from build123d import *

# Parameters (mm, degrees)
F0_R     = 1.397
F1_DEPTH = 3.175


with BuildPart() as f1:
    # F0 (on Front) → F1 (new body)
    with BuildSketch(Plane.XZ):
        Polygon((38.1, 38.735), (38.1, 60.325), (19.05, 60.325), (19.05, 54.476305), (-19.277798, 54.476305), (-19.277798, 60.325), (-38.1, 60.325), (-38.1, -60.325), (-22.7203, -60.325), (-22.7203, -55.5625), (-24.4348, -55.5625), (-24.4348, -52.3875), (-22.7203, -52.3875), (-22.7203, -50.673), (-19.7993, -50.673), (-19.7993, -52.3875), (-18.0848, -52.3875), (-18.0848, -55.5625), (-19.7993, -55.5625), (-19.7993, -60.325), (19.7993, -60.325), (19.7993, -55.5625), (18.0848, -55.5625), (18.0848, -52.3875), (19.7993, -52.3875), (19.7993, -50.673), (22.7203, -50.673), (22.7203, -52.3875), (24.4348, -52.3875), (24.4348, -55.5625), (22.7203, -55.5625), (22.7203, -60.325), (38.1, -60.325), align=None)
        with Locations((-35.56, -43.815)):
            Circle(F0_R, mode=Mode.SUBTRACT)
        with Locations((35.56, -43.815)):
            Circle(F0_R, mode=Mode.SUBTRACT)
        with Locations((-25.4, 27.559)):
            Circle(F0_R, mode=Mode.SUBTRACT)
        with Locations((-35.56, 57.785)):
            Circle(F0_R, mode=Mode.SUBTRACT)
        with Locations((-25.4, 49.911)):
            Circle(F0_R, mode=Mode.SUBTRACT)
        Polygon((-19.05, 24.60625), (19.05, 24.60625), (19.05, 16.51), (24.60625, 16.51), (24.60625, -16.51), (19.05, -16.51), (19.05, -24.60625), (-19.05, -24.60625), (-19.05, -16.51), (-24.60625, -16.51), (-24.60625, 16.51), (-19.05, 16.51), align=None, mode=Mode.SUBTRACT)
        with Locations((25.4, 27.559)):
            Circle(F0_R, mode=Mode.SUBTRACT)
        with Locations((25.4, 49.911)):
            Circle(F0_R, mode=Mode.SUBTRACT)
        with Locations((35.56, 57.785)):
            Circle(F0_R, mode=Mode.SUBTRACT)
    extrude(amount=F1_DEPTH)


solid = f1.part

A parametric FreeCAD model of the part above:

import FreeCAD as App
import Part
import Sketcher
Q = App.Units.Quantity

doc = App.newDocument("Part")
body = doc.addObject("PartDesign::Body", "Body")

# Sketch on XZ plane
sketch1 = body.newObject("Sketcher::SketchObject", "Sketch")
sketch1.AttachmentSupport = (doc.getObject("XZ_Plane"), [""])
sketch1.MapMode = "FlatFace"
sketch1.addGeometry([
    Part.LineSegment(App.Vector(38.1, 60.325, 0), App.Vector(19.05, 60.325, 0)),  # 0
    Part.LineSegment(App.Vector(19.05, 60.325, 0), App.Vector(19.05, 54.476305, 0)),  # 1
    Part.LineSegment(App.Vector(19.05, 54.476305, 0), App.Vector(-19.277798, 54.476305, 0)),  # 2
    Part.LineSegment(App.Vector(-19.277798, 54.476305, 0), App.Vector(-19.277798, 60.325, 0)),  # 3
    Part.LineSegment(App.Vector(-19.277798, 60.325, 0), App.Vector(-38.1, 60.325, 0)),  # 4
    Part.LineSegment(App.Vector(-38.1, 60.325, 0), App.Vector(-38.1, -60.325, 0)),  # 5
    Part.LineSegment(App.Vector(-38.1, -60.325, 0), App.Vector(-22.7203, -60.325, 0)),  # 6
    Part.LineSegment(App.Vector(-22.7203, -60.325, 0), App.Vector(-22.7203, -55.5625, 0)),  # 7
    Part.LineSegment(App.Vector(-22.7203, -55.5625, 0), App.Vector(-24.4348, -55.5625, 0)),  # 8
    Part.LineSegment(App.Vector(-24.4348, -55.5625, 0), App.Vector(-24.4348, -52.3875, 0)),  # 9
    Part.LineSegment(App.Vector(-24.4348, -52.3875, 0), App.Vector(-22.7203, -52.3875, 0)),  # 10
    Part.LineSegment(App.Vector(-22.7203, -52.3875, 0), App.Vector(-22.7203, -50.673, 0)),  # 11
    Part.LineSegment(App.Vector(-22.7203, -50.673, 0), App.Vector(-19.7993, -50.673, 0)),  # 12
    Part.LineSegment(App.Vector(-19.7993, -50.673, 0), App.Vector(-19.7993, -52.3875, 0)),  # 13
    Part.LineSegment(App.Vector(-19.7993, -52.3875, 0), App.Vector(-18.0848, -52.3875, 0)),  # 14
    Part.LineSegment(App.Vector(-18.0848, -52.3875, 0), App.Vector(-18.0848, -55.5625, 0)),  # 15
    Part.LineSegment(App.Vector(-18.0848, -55.5625, 0), App.Vector(-19.7993, -55.5625, 0)),  # 16
    Part.LineSegment(App.Vector(-19.7993, -55.5625, 0), App.Vector(-19.7993, -60.325, 0)),  # 17
    Part.LineSegment(App.Vector(-19.7993, -60.325, 0), App.Vector(19.7993, -60.325, 0)),  # 18
    Part.LineSegment(App.Vector(19.7993, -60.325, 0), App.Vector(19.7993, -55.5625, 0)),  # 19
    Part.LineSegment(App.Vector(19.7993, -55.5625, 0), App.Vector(18.0848, -55.5625, 0)),  # 20
    Part.LineSegment(App.Vector(18.0848, -55.5625, 0), App.Vector(18.0848, -52.3875, 0)),  # 21
    Part.LineSegment(App.Vector(18.0848, -52.3875, 0), App.Vector(19.7993, -52.3875, 0)),  # 22
    Part.LineSegment(App.Vector(19.7993, -52.3875, 0), App.Vector(19.7993, -50.673, 0)),  # 23
    Part.LineSegment(App.Vector(19.7993, -50.673, 0), App.Vector(22.7203, -50.673, 0)),  # 24
    Part.LineSegment(App.Vector(22.7203, -50.673, 0), App.Vector(22.7203, -52.3875, 0)),  # 25
    Part.LineSegment(App.Vector(22.7203, -52.3875, 0), App.Vector(24.4348, -52.3875, 0)),  # 26
    Part.LineSegment(App.Vector(24.4348, -52.3875, 0), App.Vector(24.4348, -55.5625, 0)),  # 27
    Part.LineSegment(App.Vector(24.4348, -55.5625, 0), App.Vector(22.7203, -55.5625, 0)),  # 28
    Part.LineSegment(App.Vector(22.7203, -55.5625, 0), App.Vector(22.7203, -60.325, 0)),  # 29
    Part.LineSegment(App.Vector(22.7203, -60.325, 0), App.Vector(38.1, -60.325, 0)),  # 30
    Part.LineSegment(App.Vector(38.1, -60.325, 0), App.Vector(38.1, 60.325, 0)),  # 31
    Part.Circle(App.Vector(-35.56, -43.815, 0), App.Vector(0, 0, 1), 1.397),  # 32
    Part.LineSegment(App.Vector(-19.05, 16.51, 0), App.Vector(-19.05, 24.60625, 0)),  # 33
    Part.LineSegment(App.Vector(-19.05, 24.60625, 0), App.Vector(19.05, 24.60625, 0)),  # 34
    Part.LineSegment(App.Vector(19.05, 24.60625, 0), App.Vector(19.05, 16.51, 0)),  # 35
    Part.LineSegment(App.Vector(19.05, 16.51, 0), App.Vector(24.60625, 16.51, 0)),  # 36
    Part.LineSegment(App.Vector(24.60625, 16.51, 0), App.Vector(24.60625, -16.51, 0)),  # 37
    Part.LineSegment(App.Vector(24.60625, -16.51, 0), App.Vector(19.05, -16.51, 0)),  # 38
    Part.LineSegment(App.Vector(19.05, -16.51, 0), App.Vector(19.05, -24.60625, 0)),  # 39
    Part.LineSegment(App.Vector(19.05, -24.60625, 0), App.Vector(-19.05, -24.60625, 0)),  # 40
    Part.LineSegment(App.Vector(-19.05, -24.60625, 0), App.Vector(-19.05, -16.51, 0)),  # 41
    Part.LineSegment(App.Vector(-19.05, -16.51, 0), App.Vector(-24.60625, -16.51, 0)),  # 42
    Part.LineSegment(App.Vector(-24.60625, -16.51, 0), App.Vector(-24.60625, 16.51, 0)),  # 43
    Part.LineSegment(App.Vector(-24.60625, 16.51, 0), App.Vector(-19.05, 16.51, 0)),  # 44
    Part.Circle(App.Vector(35.56, -43.815, 0), App.Vector(0, 0, 1), 1.397),  # 45
    Part.Circle(App.Vector(-25.4, 27.559, 0), App.Vector(0, 0, 1), 1.397),  # 46
    Part.Circle(App.Vector(-35.56, 57.785, 0), App.Vector(0, 0, 1), 1.397),  # 47
    Part.Circle(App.Vector(-25.4, 49.911, 0), App.Vector(0, 0, 1), 1.397),  # 48
    Part.Circle(App.Vector(25.4, 27.559, 0), App.Vector(0, 0, 1), 1.397),  # 49
    Part.Circle(App.Vector(25.4, 49.911, 0), App.Vector(0, 0, 1), 1.397),  # 50
    Part.Circle(App.Vector(35.56, 57.785, 0), App.Vector(0, 0, 1), 1.397),  # 51
], False)
sketch1.addConstraint([
    Sketcher.Constraint("Coincident", 0, 2, 1, 1),
    Sketcher.Constraint("Coincident", 1, 2, 2, 1),
    Sketcher.Constraint("Coincident", 2, 2, 3, 1),
    Sketcher.Constraint("Coincident", 3, 2, 4, 1),
    Sketcher.Constraint("Coincident", 4, 2, 5, 1),
    Sketcher.Constraint("Coincident", 5, 2, 6, 1),
    Sketcher.Constraint("Coincident", 6, 2, 7, 1),
    Sketcher.Constraint("Coincident", 7, 2, 8, 1),
    Sketcher.Constraint("Coincident", 8, 2, 9, 1),
    Sketcher.Constraint("Coincident", 9, 2, 10, 1),
    Sketcher.Constraint("Coincident", 10, 2, 11, 1),
    Sketcher.Constraint("Coincident", 11, 2, 12, 1),
    Sketcher.Constraint("Coincident", 12, 2, 13, 1),
    Sketcher.Constraint("Coincident", 13, 2, 14, 1),
    Sketcher.Constraint("Coincident", 14, 2, 15, 1),
    Sketcher.Constraint("Coincident", 15, 2, 16, 1),
    Sketcher.Constraint("Coincident", 16, 2, 17, 1),
    Sketcher.Constraint("Coincident", 17, 2, 18, 1),
    Sketcher.Constraint("Coincident", 18, 2, 19, 1),
    Sketcher.Constraint("Coincident", 19, 2, 20, 1),
    Sketcher.Constraint("Coincident", 20, 2, 21, 1),
    Sketcher.Constraint("Coincident", 21, 2, 22, 1),
    Sketcher.Constraint("Coincident", 22, 2, 23, 1),
    Sketcher.Constraint("Coincident", 23, 2, 24, 1),
    Sketcher.Constraint("Coincident", 24, 2, 25, 1),
    Sketcher.Constraint("Coincident", 25, 2, 26, 1),
    Sketcher.Constraint("Coincident", 26, 2, 27, 1),
    Sketcher.Constraint("Coincident", 27, 2, 28, 1),
    Sketcher.Constraint("Coincident", 28, 2, 29, 1),
    Sketcher.Constraint("Coincident", 29, 2, 30, 1),
    Sketcher.Constraint("Coincident", 30, 2, 31, 1),
    Sketcher.Constraint("Coincident", 31, 2, 0, 1),
    Sketcher.Constraint("Coincident", 33, 2, 34, 1),
    Sketcher.Constraint("Coincident", 34, 2, 35, 1),
    Sketcher.Constraint("Coincident", 35, 2, 36, 1),
    Sketcher.Constraint("Coincident", 36, 2, 37, 1),
    Sketcher.Constraint("Coincident", 37, 2, 38, 1),
    Sketcher.Constraint("Coincident", 38, 2, 39, 1),
    Sketcher.Constraint("Coincident", 39, 2, 40, 1),
    Sketcher.Constraint("Coincident", 40, 2, 41, 1),
    Sketcher.Constraint("Coincident", 41, 2, 42, 1),
    Sketcher.Constraint("Coincident", 42, 2, 43, 1),
    Sketcher.Constraint("Coincident", 43, 2, 44, 1),
    Sketcher.Constraint("Coincident", 44, 2, 33, 1),
    Sketcher.Constraint("Horizontal", 0),
    Sketcher.Constraint("Vertical", 1),
    Sketcher.Constraint("Horizontal", 2),
    Sketcher.Constraint("Vertical", 3),
    Sketcher.Constraint("Horizontal", 4),
    Sketcher.Constraint("Vertical", 5),
    Sketcher.Constraint("Horizontal", 6),
    Sketcher.Constraint("Vertical", 7),
    Sketcher.Constraint("Horizontal", 8),
    Sketcher.Constraint("Vertical", 9),
    Sketcher.Constraint("Horizontal", 10),
    Sketcher.Constraint("Vertical", 11),
    Sketcher.Constraint("Horizontal", 12),
    Sketcher.Constraint("Vertical", 13),
    Sketcher.Constraint("Horizontal", 14),
    Sketcher.Constraint("Vertical", 15),
    Sketcher.Constraint("Horizontal", 16),
    Sketcher.Constraint("Vertical", 17),
    Sketcher.Constraint("Horizontal", 18),
    Sketcher.Constraint("Vertical", 19),
    Sketcher.Constraint("Horizontal", 20),
    Sketcher.Constraint("Vertical", 21),
    Sketcher.Constraint("Horizontal", 22),
    Sketcher.Constraint("Vertical", 23),
    Sketcher.Constraint("Horizontal", 24),
    Sketcher.Constraint("Vertical", 25),
    Sketcher.Constraint("Horizontal", 26),
    Sketcher.Constraint("Vertical", 27),
    Sketcher.Constraint("Horizontal", 28),
    Sketcher.Constraint("Vertical", 29),
    Sketcher.Constraint("Horizontal", 30),
    Sketcher.Constraint("Vertical", 31),
    Sketcher.Constraint("Vertical", 33),
    Sketcher.Constraint("Horizontal", 34),
    Sketcher.Constraint("Vertical", 35),
    Sketcher.Constraint("Horizontal", 36),
    Sketcher.Constraint("Vertical", 37),
    Sketcher.Constraint("Horizontal", 38),
    Sketcher.Constraint("Vertical", 39),
    Sketcher.Constraint("Horizontal", 40),
    Sketcher.Constraint("Vertical", 41),
    Sketcher.Constraint("Horizontal", 42),
    Sketcher.Constraint("Vertical", 43),
    Sketcher.Constraint("Horizontal", 44),
    Sketcher.Constraint("Equal", 32, 45),
    Sketcher.Constraint("Equal", 45, 46),
    Sketcher.Constraint("Equal", 46, 47),
    Sketcher.Constraint("Equal", 47, 48),
    Sketcher.Constraint("Equal", 48, 49),
    Sketcher.Constraint("Equal", 49, 50),
    Sketcher.Constraint("Equal", 50, 51),
    Sketcher.Constraint("Symmetric", 4, 2, 30, 2, -1, 1),
    Sketcher.Constraint("Symmetric", 33, 2, 39, 2, -1, 1),
    Sketcher.Constraint("Symmetric", 35, 2, 41, 2, -1, 1),
    Sketcher.Constraint("Symmetric", 37, 2, 43, 2, -1, 1),
    Sketcher.Constraint("Symmetric", 32, 3, 45, 3, -2),
    Sketcher.Constraint("Symmetric", 46, 3, 49, 3, -2),
    Sketcher.Constraint("Symmetric", 48, 3, 50, 3, -2),
    Sketcher.Constraint("Symmetric", 47, 3, 51, 3, -2),
    Sketcher.Constraint("Symmetric", 16, 2, 19, 2, -2),
    Sketcher.Constraint("Symmetric", 14, 2, 21, 2, -2),
    Sketcher.Constraint("Symmetric", 12, 2, 23, 2, -2),
    Sketcher.Constraint("Symmetric", 10, 2, 25, 2, -2),
    Sketcher.Constraint("Symmetric", 8, 2, 27, 2, -2),
    Sketcher.Constraint("Symmetric", 6, 2, 29, 2, -2),
    Sketcher.Constraint("Symmetric", 38, 2, 41, 2, -2),
    Sketcher.Constraint("Horizontal", 0, 2, 3, 2),
    Sketcher.Constraint("Horizontal", 10, 2, 13, 2),
    Sketcher.Constraint("Horizontal", 8, 2, 15, 2),
    Sketcher.Constraint("Horizontal", 6, 2, 17, 2),
    Sketcher.Constraint("Vertical", 32, 3, 47, 3),
    Sketcher.Constraint("Vertical", 46, 3, 48, 3),
    Sketcher.Constraint("Vertical", 7, 2, 10, 2),
    Sketcher.Constraint("Vertical", 13, 2, 16, 2),
    Sketcher.Constraint("Vertical", 1, 2, 34, 2),
    Sketcher.Constraint("Equal", 10, 14),
    Sketcher.Constraint("Equal", 28, 11),
    Sketcher.Constraint("Diameter", 32, Q("0.11 in")),
    Sketcher.Constraint("DistanceX", 34, 1, 34, 2, Q("1.5 in")),
    Sketcher.Constraint("DistanceY", 37, 2, 37, 1, Q("1.3 in")),
    Sketcher.Constraint("DistanceX", 46, 3, -1, 1, Q("1 in")),
    Sketcher.Constraint("DistanceY", 32, 3, 47, 3, Q("4 in")),
    Sketcher.Constraint("DistanceX", 0, 2, 0, 1, Q("0.75 in")),
    Sketcher.Constraint("DistanceY", 5, 2, 5, 1, Q("4.75 in")),
    Sketcher.Constraint("DistanceX", 32, 3, -1, 1, Q("1.4 in")),
    Sketcher.Constraint("DistanceY", 51, 3, 0, 2, Q("0.1 in")),
    Sketcher.Constraint("DistanceX", 12, 1, 12, 2, Q("0.115 in")),
    Sketcher.Constraint("DistanceX", 18, 1, 18, 2, Q("1.559 in")),
    Sketcher.Constraint("DistanceX", 36, 1, 36, 2, Q("0.21875 in")),
    Sketcher.Constraint("DistanceY", 7, 1, 7, 2, Q("0.1875 in")),
    Sketcher.Constraint("DistanceY", 9, 1, 9, 2, Q("0.125 in")),
    Sketcher.Constraint("DistanceY", 32, 3, 46, 3, Q("2.81 in")),
    Sketcher.Constraint("DistanceY", 48, 3, 47, 3, Q("0.31 in")),
    Sketcher.Constraint("DistanceY", 6, 2, 11, 2, Q("0.38 in")),
    Sketcher.Constraint("DistanceY", -1, 1, 33, 2, Q("0.96875 in")),
    Sketcher.Constraint("DistanceX", 2, 2, -1, 1, Q("19.277798 mm")),
    Sketcher.Constraint("DistanceY", 1, 2, 1, 1, Q("5.848695 mm")),
])
pad1 = body.newObject("PartDesign::Pad", "Pad")
pad1.Profile = sketch1
pad1.Length = Q("0.125 in")

doc.recompute()
